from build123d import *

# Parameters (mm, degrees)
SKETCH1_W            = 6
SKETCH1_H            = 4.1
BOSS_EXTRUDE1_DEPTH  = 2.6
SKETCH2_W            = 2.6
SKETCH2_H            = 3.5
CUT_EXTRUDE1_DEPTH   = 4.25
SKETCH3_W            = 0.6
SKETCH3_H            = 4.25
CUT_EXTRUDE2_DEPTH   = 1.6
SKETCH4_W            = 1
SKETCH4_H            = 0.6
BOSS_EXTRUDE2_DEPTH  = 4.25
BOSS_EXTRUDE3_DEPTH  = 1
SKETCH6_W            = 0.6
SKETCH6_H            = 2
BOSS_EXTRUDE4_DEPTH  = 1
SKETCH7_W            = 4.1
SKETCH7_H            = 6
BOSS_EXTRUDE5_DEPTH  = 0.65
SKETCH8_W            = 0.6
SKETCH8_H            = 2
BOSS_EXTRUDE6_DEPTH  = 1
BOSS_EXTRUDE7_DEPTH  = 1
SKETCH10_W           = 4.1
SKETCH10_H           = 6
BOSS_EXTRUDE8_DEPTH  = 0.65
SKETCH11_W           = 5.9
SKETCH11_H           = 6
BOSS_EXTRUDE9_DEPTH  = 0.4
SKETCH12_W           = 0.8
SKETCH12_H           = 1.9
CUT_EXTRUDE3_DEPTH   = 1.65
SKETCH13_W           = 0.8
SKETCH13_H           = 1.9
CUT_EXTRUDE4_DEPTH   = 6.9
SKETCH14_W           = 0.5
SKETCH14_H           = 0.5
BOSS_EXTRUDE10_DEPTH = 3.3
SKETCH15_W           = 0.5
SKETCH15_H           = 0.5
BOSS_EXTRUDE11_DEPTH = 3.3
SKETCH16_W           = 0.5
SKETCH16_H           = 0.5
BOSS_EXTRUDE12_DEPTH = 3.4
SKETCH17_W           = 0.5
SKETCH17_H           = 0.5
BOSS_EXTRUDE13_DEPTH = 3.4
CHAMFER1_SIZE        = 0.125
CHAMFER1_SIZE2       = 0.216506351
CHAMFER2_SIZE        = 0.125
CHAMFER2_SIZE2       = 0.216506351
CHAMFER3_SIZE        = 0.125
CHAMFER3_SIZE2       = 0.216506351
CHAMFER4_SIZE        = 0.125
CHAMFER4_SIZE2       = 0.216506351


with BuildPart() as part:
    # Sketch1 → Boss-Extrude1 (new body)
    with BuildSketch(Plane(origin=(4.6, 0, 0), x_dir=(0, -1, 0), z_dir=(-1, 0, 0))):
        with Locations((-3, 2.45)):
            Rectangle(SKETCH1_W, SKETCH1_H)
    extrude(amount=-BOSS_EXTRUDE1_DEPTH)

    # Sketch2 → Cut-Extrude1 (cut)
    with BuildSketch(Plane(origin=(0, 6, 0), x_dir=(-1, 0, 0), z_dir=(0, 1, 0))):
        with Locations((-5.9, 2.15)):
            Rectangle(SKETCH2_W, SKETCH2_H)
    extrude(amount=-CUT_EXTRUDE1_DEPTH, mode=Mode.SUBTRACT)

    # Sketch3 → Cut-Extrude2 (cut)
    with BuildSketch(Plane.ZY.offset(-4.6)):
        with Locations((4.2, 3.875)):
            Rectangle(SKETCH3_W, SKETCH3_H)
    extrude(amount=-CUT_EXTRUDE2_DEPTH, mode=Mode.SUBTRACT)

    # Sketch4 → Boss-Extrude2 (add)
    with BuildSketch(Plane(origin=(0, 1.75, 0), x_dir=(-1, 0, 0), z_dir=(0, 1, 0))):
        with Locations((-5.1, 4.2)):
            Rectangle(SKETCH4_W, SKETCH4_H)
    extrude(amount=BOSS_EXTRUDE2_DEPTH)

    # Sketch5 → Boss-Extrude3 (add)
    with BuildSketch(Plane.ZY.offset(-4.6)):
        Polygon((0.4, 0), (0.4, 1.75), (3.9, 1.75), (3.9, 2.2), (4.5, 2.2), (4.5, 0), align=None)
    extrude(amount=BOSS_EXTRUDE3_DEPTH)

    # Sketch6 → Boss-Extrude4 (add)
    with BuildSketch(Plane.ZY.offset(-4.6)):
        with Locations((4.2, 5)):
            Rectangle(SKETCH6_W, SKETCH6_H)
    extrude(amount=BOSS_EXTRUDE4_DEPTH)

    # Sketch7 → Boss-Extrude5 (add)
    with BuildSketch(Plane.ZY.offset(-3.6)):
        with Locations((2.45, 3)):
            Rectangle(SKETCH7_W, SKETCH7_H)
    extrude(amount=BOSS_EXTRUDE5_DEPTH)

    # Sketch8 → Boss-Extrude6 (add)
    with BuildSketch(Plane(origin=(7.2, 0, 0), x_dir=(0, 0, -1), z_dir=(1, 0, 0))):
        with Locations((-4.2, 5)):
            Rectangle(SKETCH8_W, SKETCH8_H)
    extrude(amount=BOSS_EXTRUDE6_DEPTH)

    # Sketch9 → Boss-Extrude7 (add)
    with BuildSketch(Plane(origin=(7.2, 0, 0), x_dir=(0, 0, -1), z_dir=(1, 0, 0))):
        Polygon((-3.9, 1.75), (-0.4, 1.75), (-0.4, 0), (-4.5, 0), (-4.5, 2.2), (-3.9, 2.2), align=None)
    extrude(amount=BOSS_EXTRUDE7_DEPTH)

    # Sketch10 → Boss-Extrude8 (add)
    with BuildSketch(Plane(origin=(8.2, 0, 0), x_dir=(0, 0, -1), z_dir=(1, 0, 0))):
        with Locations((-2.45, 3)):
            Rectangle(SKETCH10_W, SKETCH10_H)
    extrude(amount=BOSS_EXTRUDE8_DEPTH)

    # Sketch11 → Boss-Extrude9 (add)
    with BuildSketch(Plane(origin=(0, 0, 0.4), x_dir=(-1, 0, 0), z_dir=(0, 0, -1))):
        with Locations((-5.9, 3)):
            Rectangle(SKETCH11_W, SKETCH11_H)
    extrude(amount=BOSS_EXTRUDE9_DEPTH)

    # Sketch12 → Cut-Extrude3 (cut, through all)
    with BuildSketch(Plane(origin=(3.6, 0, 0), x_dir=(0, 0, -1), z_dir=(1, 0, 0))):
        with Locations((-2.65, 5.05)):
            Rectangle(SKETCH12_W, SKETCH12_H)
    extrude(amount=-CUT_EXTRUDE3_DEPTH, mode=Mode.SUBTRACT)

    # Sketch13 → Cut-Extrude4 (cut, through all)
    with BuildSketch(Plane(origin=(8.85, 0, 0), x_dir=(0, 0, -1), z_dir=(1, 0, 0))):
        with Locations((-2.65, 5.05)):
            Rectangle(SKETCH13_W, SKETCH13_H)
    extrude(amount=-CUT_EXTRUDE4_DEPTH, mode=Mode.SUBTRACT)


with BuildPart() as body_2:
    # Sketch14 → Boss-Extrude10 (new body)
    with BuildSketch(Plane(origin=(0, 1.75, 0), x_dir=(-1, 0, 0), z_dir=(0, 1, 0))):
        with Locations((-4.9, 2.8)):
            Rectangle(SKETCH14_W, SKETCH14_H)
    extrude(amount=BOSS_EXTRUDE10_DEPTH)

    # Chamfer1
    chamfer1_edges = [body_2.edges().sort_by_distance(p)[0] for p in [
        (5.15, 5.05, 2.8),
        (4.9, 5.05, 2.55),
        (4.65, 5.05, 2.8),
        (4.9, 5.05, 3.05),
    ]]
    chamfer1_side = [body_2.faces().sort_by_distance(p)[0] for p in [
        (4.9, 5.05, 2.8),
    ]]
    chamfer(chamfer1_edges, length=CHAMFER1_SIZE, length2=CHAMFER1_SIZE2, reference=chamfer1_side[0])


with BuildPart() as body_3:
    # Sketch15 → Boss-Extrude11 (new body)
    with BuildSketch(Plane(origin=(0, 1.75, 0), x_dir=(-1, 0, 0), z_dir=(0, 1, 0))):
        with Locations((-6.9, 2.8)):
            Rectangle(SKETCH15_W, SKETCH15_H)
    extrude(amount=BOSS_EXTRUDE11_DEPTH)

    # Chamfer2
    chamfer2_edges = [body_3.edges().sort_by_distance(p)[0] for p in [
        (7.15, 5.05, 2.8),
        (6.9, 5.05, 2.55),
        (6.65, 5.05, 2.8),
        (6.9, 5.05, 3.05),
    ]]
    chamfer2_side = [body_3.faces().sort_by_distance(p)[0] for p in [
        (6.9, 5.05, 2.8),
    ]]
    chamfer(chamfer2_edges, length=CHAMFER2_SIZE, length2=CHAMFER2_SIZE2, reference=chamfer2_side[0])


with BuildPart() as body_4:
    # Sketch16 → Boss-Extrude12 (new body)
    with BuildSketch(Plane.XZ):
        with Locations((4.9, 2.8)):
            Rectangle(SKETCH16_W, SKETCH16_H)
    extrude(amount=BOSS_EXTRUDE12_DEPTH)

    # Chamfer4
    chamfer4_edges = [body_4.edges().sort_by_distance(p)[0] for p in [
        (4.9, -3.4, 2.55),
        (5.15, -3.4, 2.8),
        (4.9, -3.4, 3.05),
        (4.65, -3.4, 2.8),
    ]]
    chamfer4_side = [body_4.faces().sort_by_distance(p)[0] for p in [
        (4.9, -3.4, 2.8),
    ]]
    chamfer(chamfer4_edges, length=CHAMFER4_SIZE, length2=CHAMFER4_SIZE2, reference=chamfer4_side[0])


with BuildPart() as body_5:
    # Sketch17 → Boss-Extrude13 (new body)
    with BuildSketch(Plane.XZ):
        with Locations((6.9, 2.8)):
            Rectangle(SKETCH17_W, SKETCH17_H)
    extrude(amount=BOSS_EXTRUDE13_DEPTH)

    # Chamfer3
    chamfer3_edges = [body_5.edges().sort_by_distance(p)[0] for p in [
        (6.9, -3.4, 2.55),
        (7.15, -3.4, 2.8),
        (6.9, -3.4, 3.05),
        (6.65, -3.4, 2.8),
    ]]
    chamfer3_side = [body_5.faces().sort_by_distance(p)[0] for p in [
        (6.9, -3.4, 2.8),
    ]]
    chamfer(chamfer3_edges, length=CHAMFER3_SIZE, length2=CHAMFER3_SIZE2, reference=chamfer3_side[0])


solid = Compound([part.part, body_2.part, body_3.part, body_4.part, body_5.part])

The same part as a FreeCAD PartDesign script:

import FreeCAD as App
import Part
import Sketcher
from FreeCAD import Vector
Q = App.Units.Quantity


def edges_at(feature, points):
    """Names of the edges that pass closest to the given points."""
    edges = feature.Shape.Edges
    near = lambda p: min(range(len(edges)), key=lambda i: edges[i].distToShape(Part.Vertex(*p))[0])
    return sorted({f"Edge{near(p) + 1}" for p in points})


def add_polygon(sketch, points):
    """Adds a closed chain of lines whose ends are joined by coincident constraints."""
    first, n = sketch.GeometryCount, len(points)
    for a, b in zip(points, points[1:] + points[:1]):
        sketch.addGeometry(Part.LineSegment(App.Vector(*a, 0), App.Vector(*b, 0)), False)
    for i in range(n):
        sketch.addConstraint(Sketcher.Constraint("Coincident", first + i, 2, first + (i + 1) % n, 1))

doc = App.newDocument("Part")
body = doc.addObject("PartDesign::Body", "Body")

sketch1 = body.newObject("Sketcher::SketchObject", "Sketch")
sketch1.AttachmentSupport = (doc.getObject("YZ_Plane"), [""])
sketch1.MapMode = "FlatFace"
sketch1.AttachmentOffset = App.Placement(Vector(0, 0, 4.6), App.Rotation())
add_polygon(sketch1, [(6, 4.5), (6, 0.4), (0, 0.4), (0, 4.5)])
sketch1.addConstraint([
    Sketcher.Constraint("Vertical", 0),
    Sketcher.Constraint("Horizontal", 1),
    Sketcher.Constraint("Vertical", 2),
    Sketcher.Constraint("Horizontal", 3),
    Sketcher.Constraint("PointOnObject", 1, 2, -2),
    Sketcher.Constraint("DistanceX", 1, 2, 1, 1, Q("6 mm")),
    Sketcher.Constraint("DistanceY", 0, 2, 0, 1, Q("4.1 mm")),
    Sketcher.Constraint("DistanceY", -1, 1, 0, 2, Q("0.4 mm")),
])
pad1 = body.newObject("PartDesign::Pad", "Pad")
pad1.Profile = sketch1
pad1.Length = 2.6

sketch2 = body.newObject("Sketcher::SketchObject", "Sketch001")
sketch2.AttachmentSupport = (doc.getObject("XZ_Plane"), [""])
sketch2.MapMode = "FlatFace"
sketch2.AttachmentOffset = App.Placement(Vector(0, 0, -6), App.Rotation())
add_polygon(sketch2, [(7.2, 3.9), (7.2, 0.4), (4.6, 0.4), (4.6, 3.9)])
sketch2.addConstraint([
    Sketcher.Constraint("Vertical", 0),
    Sketcher.Constraint("Horizontal", 1),
    Sketcher.Constraint("Vertical", 2),
    Sketcher.Constraint("Horizontal", 3),
    Sketcher.Constraint("DistanceX", 1, 2, 1, 1, Q("2.6 mm")),
    Sketcher.Constraint("DistanceY", 0, 2, 0, 1, Q("3.5 mm")),
    Sketcher.Constraint("DistanceX", -1, 1, 0, 2, Q("7.2 mm")),
    Sketcher.Constraint("DistanceY", -1, 1, 0, 2, Q("0.4 mm")),
])
pocket1 = body.newObject("PartDesign::Pocket", "Pocket")
pocket1.Profile = sketch2
pocket1.Length = 4.25
pocket1.Reversed = True

sketch3 = body.newObject("Sketcher::SketchObject", "Sketch002")
sketch3.AttachmentSupport = (doc.getObject("YZ_Plane"), [""])
sketch3.MapMode = "FlatFace"
sketch3.AttachmentOffset = App.Placement(Vector(0, 0, 4.6), App.Rotation())
add_polygon(sketch3, [(6, 3.9), (1.75, 3.9), (1.75, 4.5), (6, 4.5)])
sketch3.addConstraint([
    Sketcher.Constraint("Horizontal", 0),
    Sketcher.Constraint("Vertical", 1),
    Sketcher.Constraint("Horizontal", 2),
    Sketcher.Constraint("Vertical", 3),
    Sketcher.Constraint("DistanceY", 1, 1, 1, 2, Q("0.6 mm")),
    Sketcher.Constraint("DistanceX", -1, 1, 2, 2, Q("6 mm")),
    Sketcher.Constraint("DistanceX", 0, 2, 0, 1, Q("4.25 mm")),
    Sketcher.Constraint("DistanceY", -1, 1, 0, 2, Q("3.9 mm")),
])
pocket2 = body.newObject("PartDesign::Pocket", "Pocket001")
pocket2.Profile = sketch3
pocket2.Length = 1.6
pocket2.Reversed = True

sketch4 = body.newObject("Sketcher::SketchObject", "Sketch003")
sketch4.AttachmentSupport = (doc.getObject("XZ_Plane"), [""])
sketch4.MapMode = "FlatFace"
sketch4.AttachmentOffset = App.Placement(Vector(0, 0, -1.75), App.Rotation())
add_polygon(sketch4, [(5.6, 4.5), (5.6, 3.9), (4.6, 3.9), (4.6, 4.5)])
sketch4.addConstraint([
    Sketcher.Constraint("Vertical", 0),
    Sketcher.Constraint("Horizontal", 1),
    Sketcher.Constraint("Vertical", 2),
    Sketcher.Constraint("Horizontal", 3),
    Sketcher.Constraint("DistanceX", 1, 2, 1, 1, Q("1 mm")),
    Sketcher.Constraint("DistanceY", 0, 2, 0, 1, Q("0.6 mm")),
    Sketcher.Constraint("DistanceX", -1, 1, 0, 2, Q("5.6 mm")),
    Sketcher.Constraint("DistanceY", -1, 1, 0, 2, Q("3.9 mm")),
])
pad2 = body.newObject("PartDesign::Pad", "Pad001")
pad2.Profile = sketch4
pad2.Length = 4.25
pad2.Reversed = True

sketch5 = body.newObject("Sketcher::SketchObject", "Sketch004")
sketch5.AttachmentSupport = (doc.getObject("YZ_Plane"), [""])
sketch5.MapMode = "FlatFace"
sketch5.AttachmentOffset = App.Placement(Vector(0, 0, 4.6), App.Rotation())
add_polygon(sketch5, [(1.75, 0.4), (0, 0.4), (0, 4.5), (2.2, 4.5), (2.2, 3.9), (1.75, 3.9)])
sketch5.addConstraint([
    Sketcher.Constraint("Horizontal", 0),
    Sketcher.Constraint("Vertical", 1),
    Sketcher.Constraint("Horizontal", 2),
    Sketcher.Constraint("Vertical", 3),
    Sketcher.Constraint("Horizontal", 4),
    Sketcher.Constraint("Vertical", 5),
    Sketcher.Constraint("PointOnObject", 0, 2, -2),
    Sketcher.Constraint("DistanceX", 2, 1, 2, 2, Q("2.2 mm")),
    Sketcher.Constraint("DistanceY", 1, 1, 1, 2, Q("4.1 mm")),
    Sketcher.Constraint("DistanceY", 3, 2, 3, 1, Q("0.6 mm")),
    Sketcher.Constraint("DistanceX", 0, 2, 0, 1, Q("1.75 mm")),
    Sketcher.Constraint("DistanceY", -1, 1, 0, 2, Q("0.4 mm")),
])
pad3 = body.newObject("PartDesign::Pad", "Pad002")
pad3.Profile = sketch5
pad3.Length = 1
pad3.Reversed = True

sketch6 = body.newObject("Sketcher::SketchObject", "Sketch005")
sketch6.AttachmentSupport = (doc.getObject("YZ_Plane"), [""])
sketch6.MapMode = "FlatFace"
sketch6.AttachmentOffset = App.Placement(Vector(0, 0, 4.6), App.Rotation())
add_polygon(sketch6, [(6, 3.9), (4, 3.9), (4, 4.5), (6, 4.5)])
sketch6.addConstraint([
    Sketcher.Constraint("Horizontal", 0),
    Sketcher.Constraint("Vertical", 1),
    Sketcher.Constraint("Horizontal", 2),
    Sketcher.Constraint("Vertical", 3),
    Sketcher.Constraint("DistanceX", 0, 2, 0, 1, Q("2 mm")),
    Sketcher.Constraint("DistanceY", 1, 1, 1, 2, Q("0.6 mm")),
    Sketcher.Constraint("DistanceX", -1, 1, 0, 2, Q("4 mm")),
    Sketcher.Constraint("DistanceY", -1, 1, 0, 2, Q("3.9 mm")),
])
pad4 = body.newObject("PartDesign::Pad", "Pad003")
pad4.Profile = sketch6
pad4.Length = 1
pad4.Reversed = True

sketch7 = body.newObject("Sketcher::SketchObject", "Sketch006")
sketch7.AttachmentSupport = (doc.getObject("YZ_Plane"), [""])
sketch7.MapMode = "FlatFace"
sketch7.AttachmentOffset = App.Placement(Vector(0, 0, 3.6), App.Rotation())
add_polygon(sketch7, [(6, 0.4), (0, 0.4), (0, 4.5), (6, 4.5)])
sketch7.addConstraint([
    Sketcher.Constraint("Horizontal", 0),
    Sketcher.Constraint("Vertical", 1),
    Sketcher.Constraint("Horizontal", 2),
    Sketcher.Constraint("Vertical", 3),
    Sketcher.Constraint("PointOnObject", 0, 2, -2),
    Sketcher.Constraint("DistanceX", 0, 2, 0, 1, Q("6 mm")),
    Sketcher.Constraint("DistanceY", 1, 1, 1, 2, Q("4.1 mm")),
    Sketcher.Constraint("DistanceY", -1, 1, 0, 2, Q("0.4 mm")),
])
pad5 = body.newObject("PartDesign::Pad", "Pad004")
pad5.Profile = sketch7
pad5.Length = 0.65
pad5.Reversed = True

sketch8 = body.newObject("Sketcher::SketchObject", "Sketch007")
sketch8.AttachmentSupport = (doc.getObject("YZ_Plane"), [""])
sketch8.MapMode = "FlatFace"
sketch8.AttachmentOffset = App.Placement(Vector(0, 0, 7.2), App.Rotation())
add_polygon(sketch8, [(6, 4.5), (4, 4.5), (4, 3.9), (6, 3.9)])
sketch8.addConstraint([
    Sketcher.Constraint("Horizontal", 0),
    Sketcher.Constraint("Vertical", 1),
    Sketcher.Constraint("Horizontal", 2),
    Sketcher.Constraint("Vertical", 3),
    Sketcher.Constraint("DistanceX", 0, 2, 0, 1, Q("2 mm")),
    Sketcher.Constraint("DistanceY", 1, 2, 1, 1, Q("0.6 mm")),
    Sketcher.Constraint("DistanceX", -1, 1, 0, 2, Q("4 mm")),
    Sketcher.Constraint("DistanceY", -1, 1, 0, 2, Q("4.5 mm")),
])
pad6 = body.newObject("PartDesign::Pad", "Pad005")
pad6.Profile = sketch8
pad6.Length = 1

sketch9 = body.newObject("Sketcher::SketchObject", "Sketch008")
sketch9.AttachmentSupport = (doc.getObject("YZ_Plane"), [""])
sketch9.MapMode = "FlatFace"
sketch9.AttachmentOffset = App.Placement(Vector(0, 0, 7.2), App.Rotation())
add_polygon(sketch9, [(1.75, 0.4), (1.75, 3.9), (2.2, 3.9), (2.2, 4.5), (0, 4.5), (0, 0.4)])
sketch9.addConstraint([
    Sketcher.Constraint("Vertical", 0),
    Sketcher.Constraint("Horizontal", 1),
    Sketcher.Constraint("Vertical", 2),
    Sketcher.Constraint("Horizontal", 3),
    Sketcher.Constraint("Vertical", 4),
    Sketcher.Constraint("Horizontal", 5),
    Sketcher.Constraint("PointOnObject", 3, 2, -2),
    Sketcher.Constraint("DistanceX", 3, 2, 3, 1, Q("2.2 mm")),
    Sketcher.Constraint("DistanceY", 0, 1, 0, 2, Q("3.5 mm")),
    Sketcher.Constraint("DistanceY", 2, 1, 2, 2, Q("0.6 mm")),
    Sketcher.Constraint("DistanceX", 1, 1, 1, 2, Q("0.45 mm")),
    Sketcher.Constraint("DistanceY", -1, 1, 0, 2, Q("3.9 mm")),
])
pad7 = body.newObject("PartDesign::Pad", "Pad006")
pad7.Profile = sketch9
pad7.Length = 1

sketch10 = body.newObject("Sketcher::SketchObject", "Sketch009")
sketch10.AttachmentSupport = (doc.getObject("YZ_Plane"), [""])
sketch10.MapMode = "FlatFace"
sketch10.AttachmentOffset = App.Placement(Vector(0, 0, 8.2), App.Rotation())
add_polygon(sketch10, [(6, 4.5), (0, 4.5), (0, 0.4), (6, 0.4)])
sketch10.addConstraint([
    Sketcher.Constraint("Horizontal", 0),
    Sketcher.Constraint("Vertical", 1),
    Sketcher.Constraint("Horizontal", 2),
    Sketcher.Constraint("Vertical", 3),
    Sketcher.Constraint("PointOnObject", 0, 2, -2),
    Sketcher.Constraint("DistanceX", 0, 2, 0, 1, Q("6 mm")),
    Sketcher.Constraint("DistanceY", 1, 2, 1, 1, Q("4.1 mm")),
    Sketcher.Constraint("DistanceY", -1, 1, 0, 2, Q("4.5 mm")),
])
pad8 = body.newObject("PartDesign::Pad", "Pad007")
pad8.Profile = sketch10
pad8.Length = 0.65

sketch11 = body.newObject("Sketcher::SketchObject", "Sketch010")
sketch11.AttachmentSupport = (doc.getObject("XY_Plane"), [""])
sketch11.MapMode = "FlatFace"
sketch11.AttachmentOffset = App.Placement(Vector(0, 0, 0.4), App.Rotation())
add_polygon(sketch11, [(8.85, 6), (8.85, 0), (2.95, 0), (2.95, 6)])
sketch11.addConstraint([
    Sketcher.Constraint("Vertical", 0),
    Sketcher.Constraint("Horizontal", 1),
    Sketcher.Constraint("Vertical", 2),
    Sketcher.Constraint("Horizontal", 3),
    Sketcher.Constraint("PointOnObject", 0, 2, -1),
    Sketcher.Constraint("DistanceY", 0, 2, 0, 1, Q("6 mm")),
    Sketcher.Constraint("DistanceX", 1, 2, 1, 1, Q("5.9 mm")),
    Sketcher.Constraint("DistanceX", -1, 1, 0, 2, Q("8.85 mm")),
])
pad9 = body.newObject("PartDesign::Pad", "Pad008")
pad9.Profile = sketch11
pad9.Length = 0.4
pad9.Reversed = True

sketch12 = body.newObject("Sketcher::SketchObject", "Sketch011")
sketch12.AttachmentSupport = (doc.getObject("YZ_Plane"), [""])
sketch12.MapMode = "FlatFace"
sketch12.AttachmentOffset = App.Placement(Vector(0, 0, 3.6), App.Rotation())
add_polygon(sketch12, [(6, 3.05), (4.1, 3.05), (4.1, 2.25), (6, 2.25)])
sketch12.addConstraint([
    Sketcher.Constraint("Horizontal", 0),
    Sketcher.Constraint("Vertical", 1),
    Sketcher.Constraint("Horizontal", 2),
    Sketcher.Constraint("Vertical", 3),
    Sketcher.Constraint("DistanceX", 0, 2, 0, 1, Q("1.9 mm")),
    Sketcher.Constraint("DistanceY", 1, 2, 1, 1, Q("0.8 mm")),
    Sketcher.Constraint("DistanceX", -1, 1, 2, 2, Q("6 mm")),
    Sketcher.Constraint("DistanceY", -1, 1, 0, 2, Q("3.05 mm")),
])
pocket3 = body.newObject("PartDesign::Pocket", "Pocket002")
pocket3.Profile = sketch12
pocket3.Type = "ThroughAll"

sketch13 = body.newObject("Sketcher::SketchObject", "Sketch012")
sketch13.AttachmentSupport = (doc.getObject("YZ_Plane"), [""])
sketch13.MapMode = "FlatFace"
sketch13.AttachmentOffset = App.Placement(Vector(0, 0, 8.85), App.Rotation())
add_polygon(sketch13, [(6, 3.05), (4.1, 3.05), (4.1, 2.25), (6, 2.25)])
sketch13.addConstraint([
    Sketcher.Constraint("Horizontal", 0),
    Sketcher.Constraint("Vertical", 1),
    Sketcher.Constraint("Horizontal", 2),
    Sketcher.Constraint("Vertical", 3),
    Sketcher.Constraint("DistanceX", 0, 2, 0, 1, Q("1.9 mm")),
    Sketcher.Constraint("DistanceY", 1, 2, 1, 1, Q("0.8 mm")),
    Sketcher.Constraint("DistanceX", -1, 1, 2, 2, Q("6 mm")),
    Sketcher.Constraint("DistanceY", -1, 1, 0, 2, Q("3.05 mm")),
])
pocket4 = body.newObject("PartDesign::Pocket", "Pocket003")
pocket4.Profile = sketch13
pocket4.Type = "ThroughAll"
body2 = doc.addObject("PartDesign::Body", "Body001")

sketch14 = body2.newObject("Sketcher::SketchObject", "Sketch013")
sketch14.AttachmentSupport = (doc.getObject("XZ_Plane001"), [""])
sketch14.MapMode = "FlatFace"
sketch14.AttachmentOffset = App.Placement(Vector(0, 0, -1.75), App.Rotation())
add_polygon(sketch14, [(5.15, 3.05), (5.15, 2.55), (4.65, 2.55), (4.65, 3.05)])
sketch14.addConstraint([
    Sketcher.Constraint("Vertical", 0),
    Sketcher.Constraint("Horizontal", 1),
    Sketcher.Constraint("Vertical", 2),
    Sketcher.Constraint("Horizontal", 3),
    Sketcher.Constraint("Equal", 3, 0),
    Sketcher.Constraint("DistanceX", 1, 2, 1, 1, Q("0.5 mm")),
    Sketcher.Constraint("DistanceX", -1, 1, 0, 2, Q("5.15 mm")),
    Sketcher.Constraint("DistanceY", -1, 1, 0, 2, Q("2.55 mm")),
])
pad10 = body2.newObject("PartDesign::Pad", "Pad009")
pad10.Profile = sketch14
pad10.Length = 3.3
pad10.Reversed = True
doc.recompute()

chamfer = body2.newObject("PartDesign::Chamfer", "Chamfer")
chamfer.Base = (pad10, edges_at(pad10, [
    (5.15, 5.05, 2.8),
    (4.9, 5.05, 2.55),
    (4.65, 5.05, 2.8),
    (4.9, 5.05, 3.05),
]))
chamfer.ChamferType = "Two distances"
chamfer.Size = 0.125
chamfer.Size2 = 0.216506
chamfer.FlipDirection = True
body3 = doc.addObject("PartDesign::Body", "Body002")

sketch15 = body3.newObject("Sketcher::SketchObject", "Sketch014")
sketch15.AttachmentSupport = (doc.getObject("XZ_Plane002"), [""])
sketch15.MapMode = "FlatFace"
sketch15.AttachmentOffset = App.Placement(Vector(0, 0, -1.75), App.Rotation())
add_polygon(sketch15, [(7.15, 3.05), (7.15, 2.55), (6.65, 2.55), (6.65, 3.05)])
sketch15.addConstraint([
    Sketcher.Constraint("Vertical", 0),
    Sketcher.Constraint("Horizontal", 1),
    Sketcher.Constraint("Vertical", 2),
    Sketcher.Constraint("Horizontal", 3),
    Sketcher.Constraint("Equal", 3, 0),
    Sketcher.Constraint("DistanceX", 1, 2, 1, 1, Q("0.5 mm")),
    Sketcher.Constraint("DistanceX", -1, 1, 0, 2, Q("7.15 mm")),
    Sketcher.Constraint("DistanceY", -1, 1, 0, 2, Q("2.55 mm")),
])
pad11 = body3.newObject("PartDesign::Pad", "Pad010")
pad11.Profile = sketch15
pad11.Length = 3.3
pad11.Reversed = True
doc.recompute()

chamfer2 = body3.newObject("PartDesign::Chamfer", "Chamfer001")
chamfer2.Base = (pad11, edges_at(pad11, [
    (7.15, 5.05, 2.8),
    (6.9, 5.05, 2.55),
    (6.65, 5.05, 2.8),
    (6.9, 5.05, 3.05),
]))
chamfer2.ChamferType = "Two distances"
chamfer2.Size = 0.125
chamfer2.Size2 = 0.216506
chamfer2.FlipDirection = True
body4 = doc.addObject("PartDesign::Body", "Body003")

sketch16 = body4.newObject("Sketcher::SketchObject", "Sketch015")
sketch16.AttachmentSupport = (doc.getObject("XZ_Plane003"), [""])
sketch16.MapMode = "FlatFace"
add_polygon(sketch16, [(4.65, 3.05), (4.65, 2.55), (5.15, 2.55), (5.15, 3.05)])
sketch16.addConstraint([
    Sketcher.Constraint("Vertical", 0),
    Sketcher.Constraint("Horizontal", 1),
    Sketcher.Constraint("Vertical", 2),
    Sketcher.Constraint("Horizontal", 3),
    Sketcher.Constraint("Equal", 3, 0),
    Sketcher.Constraint("DistanceX", 1, 1, 1, 2, Q("0.5 mm")),
    Sketcher.Constraint("DistanceX", -1, 1, 0, 2, Q("4.65 mm")),
    Sketcher.Constraint("DistanceY", -1, 1, 0, 2, Q("2.55 mm")),
])
pad12 = body4.newObject("PartDesign::Pad", "Pad011")
pad12.Profile = sketch16
pad12.Length = 3.4
doc.recompute()

chamfer3 = body4.newObject("PartDesign::Chamfer", "Chamfer002")
chamfer3.Base = (pad12, edges_at(pad12, [
    (4.9, -3.4, 2.55),
    (5.15, -3.4, 2.8),
    (4.9, -3.4, 3.05),
    (4.65, -3.4, 2.8),
]))
chamfer3.ChamferType = "Two distances"
chamfer3.Size = 0.125
chamfer3.Size2 = 0.216506
chamfer3.FlipDirection = True
body5 = doc.addObject("PartDesign::Body", "Body004")

sketch17 = body5.newObject("Sketcher::SketchObject", "Sketch016")
sketch17.AttachmentSupport = (doc.getObject("XZ_Plane004"), [""])
sketch17.MapMode = "FlatFace"
add_polygon(sketch17, [(6.65, 3.05), (6.65, 2.55), (7.15, 2.55), (7.15, 3.05)])
sketch17.addConstraint([
    Sketcher.Constraint("Vertical", 0),
    Sketcher.Constraint("Horizontal", 1),
    Sketcher.Constraint("Vertical", 2),
    Sketcher.Constraint("Horizontal", 3),
    Sketcher.Constraint("Equal", 3, 0),
    Sketcher.Constraint("DistanceX", 1, 1, 1, 2, Q("0.5 mm")),
    Sketcher.Constraint("DistanceX", -1, 1, 0, 2, Q("6.65 mm")),
    Sketcher.Constraint("DistanceY", -1, 1, 0, 2, Q("2.55 mm")),
])
pad13 = body5.newObject("PartDesign::Pad", "Pad012")
pad13.Profile = sketch17
pad13.Length = 3.4
doc.recompute()

chamfer4 = body5.newObject("PartDesign::Chamfer", "Chamfer003")
chamfer4.Base = (pad13, edges_at(pad13, [
    (6.9, -3.4, 2.55),
    (7.15, -3.4, 2.8),
    (6.9, -3.4, 3.05),
    (6.65, -3.4, 2.8),
]))
chamfer4.ChamferType = "Two distances"
chamfer4.Size = 0.125
chamfer4.Size2 = 0.216506
chamfer4.FlipDirection = True

doc.recompute()
